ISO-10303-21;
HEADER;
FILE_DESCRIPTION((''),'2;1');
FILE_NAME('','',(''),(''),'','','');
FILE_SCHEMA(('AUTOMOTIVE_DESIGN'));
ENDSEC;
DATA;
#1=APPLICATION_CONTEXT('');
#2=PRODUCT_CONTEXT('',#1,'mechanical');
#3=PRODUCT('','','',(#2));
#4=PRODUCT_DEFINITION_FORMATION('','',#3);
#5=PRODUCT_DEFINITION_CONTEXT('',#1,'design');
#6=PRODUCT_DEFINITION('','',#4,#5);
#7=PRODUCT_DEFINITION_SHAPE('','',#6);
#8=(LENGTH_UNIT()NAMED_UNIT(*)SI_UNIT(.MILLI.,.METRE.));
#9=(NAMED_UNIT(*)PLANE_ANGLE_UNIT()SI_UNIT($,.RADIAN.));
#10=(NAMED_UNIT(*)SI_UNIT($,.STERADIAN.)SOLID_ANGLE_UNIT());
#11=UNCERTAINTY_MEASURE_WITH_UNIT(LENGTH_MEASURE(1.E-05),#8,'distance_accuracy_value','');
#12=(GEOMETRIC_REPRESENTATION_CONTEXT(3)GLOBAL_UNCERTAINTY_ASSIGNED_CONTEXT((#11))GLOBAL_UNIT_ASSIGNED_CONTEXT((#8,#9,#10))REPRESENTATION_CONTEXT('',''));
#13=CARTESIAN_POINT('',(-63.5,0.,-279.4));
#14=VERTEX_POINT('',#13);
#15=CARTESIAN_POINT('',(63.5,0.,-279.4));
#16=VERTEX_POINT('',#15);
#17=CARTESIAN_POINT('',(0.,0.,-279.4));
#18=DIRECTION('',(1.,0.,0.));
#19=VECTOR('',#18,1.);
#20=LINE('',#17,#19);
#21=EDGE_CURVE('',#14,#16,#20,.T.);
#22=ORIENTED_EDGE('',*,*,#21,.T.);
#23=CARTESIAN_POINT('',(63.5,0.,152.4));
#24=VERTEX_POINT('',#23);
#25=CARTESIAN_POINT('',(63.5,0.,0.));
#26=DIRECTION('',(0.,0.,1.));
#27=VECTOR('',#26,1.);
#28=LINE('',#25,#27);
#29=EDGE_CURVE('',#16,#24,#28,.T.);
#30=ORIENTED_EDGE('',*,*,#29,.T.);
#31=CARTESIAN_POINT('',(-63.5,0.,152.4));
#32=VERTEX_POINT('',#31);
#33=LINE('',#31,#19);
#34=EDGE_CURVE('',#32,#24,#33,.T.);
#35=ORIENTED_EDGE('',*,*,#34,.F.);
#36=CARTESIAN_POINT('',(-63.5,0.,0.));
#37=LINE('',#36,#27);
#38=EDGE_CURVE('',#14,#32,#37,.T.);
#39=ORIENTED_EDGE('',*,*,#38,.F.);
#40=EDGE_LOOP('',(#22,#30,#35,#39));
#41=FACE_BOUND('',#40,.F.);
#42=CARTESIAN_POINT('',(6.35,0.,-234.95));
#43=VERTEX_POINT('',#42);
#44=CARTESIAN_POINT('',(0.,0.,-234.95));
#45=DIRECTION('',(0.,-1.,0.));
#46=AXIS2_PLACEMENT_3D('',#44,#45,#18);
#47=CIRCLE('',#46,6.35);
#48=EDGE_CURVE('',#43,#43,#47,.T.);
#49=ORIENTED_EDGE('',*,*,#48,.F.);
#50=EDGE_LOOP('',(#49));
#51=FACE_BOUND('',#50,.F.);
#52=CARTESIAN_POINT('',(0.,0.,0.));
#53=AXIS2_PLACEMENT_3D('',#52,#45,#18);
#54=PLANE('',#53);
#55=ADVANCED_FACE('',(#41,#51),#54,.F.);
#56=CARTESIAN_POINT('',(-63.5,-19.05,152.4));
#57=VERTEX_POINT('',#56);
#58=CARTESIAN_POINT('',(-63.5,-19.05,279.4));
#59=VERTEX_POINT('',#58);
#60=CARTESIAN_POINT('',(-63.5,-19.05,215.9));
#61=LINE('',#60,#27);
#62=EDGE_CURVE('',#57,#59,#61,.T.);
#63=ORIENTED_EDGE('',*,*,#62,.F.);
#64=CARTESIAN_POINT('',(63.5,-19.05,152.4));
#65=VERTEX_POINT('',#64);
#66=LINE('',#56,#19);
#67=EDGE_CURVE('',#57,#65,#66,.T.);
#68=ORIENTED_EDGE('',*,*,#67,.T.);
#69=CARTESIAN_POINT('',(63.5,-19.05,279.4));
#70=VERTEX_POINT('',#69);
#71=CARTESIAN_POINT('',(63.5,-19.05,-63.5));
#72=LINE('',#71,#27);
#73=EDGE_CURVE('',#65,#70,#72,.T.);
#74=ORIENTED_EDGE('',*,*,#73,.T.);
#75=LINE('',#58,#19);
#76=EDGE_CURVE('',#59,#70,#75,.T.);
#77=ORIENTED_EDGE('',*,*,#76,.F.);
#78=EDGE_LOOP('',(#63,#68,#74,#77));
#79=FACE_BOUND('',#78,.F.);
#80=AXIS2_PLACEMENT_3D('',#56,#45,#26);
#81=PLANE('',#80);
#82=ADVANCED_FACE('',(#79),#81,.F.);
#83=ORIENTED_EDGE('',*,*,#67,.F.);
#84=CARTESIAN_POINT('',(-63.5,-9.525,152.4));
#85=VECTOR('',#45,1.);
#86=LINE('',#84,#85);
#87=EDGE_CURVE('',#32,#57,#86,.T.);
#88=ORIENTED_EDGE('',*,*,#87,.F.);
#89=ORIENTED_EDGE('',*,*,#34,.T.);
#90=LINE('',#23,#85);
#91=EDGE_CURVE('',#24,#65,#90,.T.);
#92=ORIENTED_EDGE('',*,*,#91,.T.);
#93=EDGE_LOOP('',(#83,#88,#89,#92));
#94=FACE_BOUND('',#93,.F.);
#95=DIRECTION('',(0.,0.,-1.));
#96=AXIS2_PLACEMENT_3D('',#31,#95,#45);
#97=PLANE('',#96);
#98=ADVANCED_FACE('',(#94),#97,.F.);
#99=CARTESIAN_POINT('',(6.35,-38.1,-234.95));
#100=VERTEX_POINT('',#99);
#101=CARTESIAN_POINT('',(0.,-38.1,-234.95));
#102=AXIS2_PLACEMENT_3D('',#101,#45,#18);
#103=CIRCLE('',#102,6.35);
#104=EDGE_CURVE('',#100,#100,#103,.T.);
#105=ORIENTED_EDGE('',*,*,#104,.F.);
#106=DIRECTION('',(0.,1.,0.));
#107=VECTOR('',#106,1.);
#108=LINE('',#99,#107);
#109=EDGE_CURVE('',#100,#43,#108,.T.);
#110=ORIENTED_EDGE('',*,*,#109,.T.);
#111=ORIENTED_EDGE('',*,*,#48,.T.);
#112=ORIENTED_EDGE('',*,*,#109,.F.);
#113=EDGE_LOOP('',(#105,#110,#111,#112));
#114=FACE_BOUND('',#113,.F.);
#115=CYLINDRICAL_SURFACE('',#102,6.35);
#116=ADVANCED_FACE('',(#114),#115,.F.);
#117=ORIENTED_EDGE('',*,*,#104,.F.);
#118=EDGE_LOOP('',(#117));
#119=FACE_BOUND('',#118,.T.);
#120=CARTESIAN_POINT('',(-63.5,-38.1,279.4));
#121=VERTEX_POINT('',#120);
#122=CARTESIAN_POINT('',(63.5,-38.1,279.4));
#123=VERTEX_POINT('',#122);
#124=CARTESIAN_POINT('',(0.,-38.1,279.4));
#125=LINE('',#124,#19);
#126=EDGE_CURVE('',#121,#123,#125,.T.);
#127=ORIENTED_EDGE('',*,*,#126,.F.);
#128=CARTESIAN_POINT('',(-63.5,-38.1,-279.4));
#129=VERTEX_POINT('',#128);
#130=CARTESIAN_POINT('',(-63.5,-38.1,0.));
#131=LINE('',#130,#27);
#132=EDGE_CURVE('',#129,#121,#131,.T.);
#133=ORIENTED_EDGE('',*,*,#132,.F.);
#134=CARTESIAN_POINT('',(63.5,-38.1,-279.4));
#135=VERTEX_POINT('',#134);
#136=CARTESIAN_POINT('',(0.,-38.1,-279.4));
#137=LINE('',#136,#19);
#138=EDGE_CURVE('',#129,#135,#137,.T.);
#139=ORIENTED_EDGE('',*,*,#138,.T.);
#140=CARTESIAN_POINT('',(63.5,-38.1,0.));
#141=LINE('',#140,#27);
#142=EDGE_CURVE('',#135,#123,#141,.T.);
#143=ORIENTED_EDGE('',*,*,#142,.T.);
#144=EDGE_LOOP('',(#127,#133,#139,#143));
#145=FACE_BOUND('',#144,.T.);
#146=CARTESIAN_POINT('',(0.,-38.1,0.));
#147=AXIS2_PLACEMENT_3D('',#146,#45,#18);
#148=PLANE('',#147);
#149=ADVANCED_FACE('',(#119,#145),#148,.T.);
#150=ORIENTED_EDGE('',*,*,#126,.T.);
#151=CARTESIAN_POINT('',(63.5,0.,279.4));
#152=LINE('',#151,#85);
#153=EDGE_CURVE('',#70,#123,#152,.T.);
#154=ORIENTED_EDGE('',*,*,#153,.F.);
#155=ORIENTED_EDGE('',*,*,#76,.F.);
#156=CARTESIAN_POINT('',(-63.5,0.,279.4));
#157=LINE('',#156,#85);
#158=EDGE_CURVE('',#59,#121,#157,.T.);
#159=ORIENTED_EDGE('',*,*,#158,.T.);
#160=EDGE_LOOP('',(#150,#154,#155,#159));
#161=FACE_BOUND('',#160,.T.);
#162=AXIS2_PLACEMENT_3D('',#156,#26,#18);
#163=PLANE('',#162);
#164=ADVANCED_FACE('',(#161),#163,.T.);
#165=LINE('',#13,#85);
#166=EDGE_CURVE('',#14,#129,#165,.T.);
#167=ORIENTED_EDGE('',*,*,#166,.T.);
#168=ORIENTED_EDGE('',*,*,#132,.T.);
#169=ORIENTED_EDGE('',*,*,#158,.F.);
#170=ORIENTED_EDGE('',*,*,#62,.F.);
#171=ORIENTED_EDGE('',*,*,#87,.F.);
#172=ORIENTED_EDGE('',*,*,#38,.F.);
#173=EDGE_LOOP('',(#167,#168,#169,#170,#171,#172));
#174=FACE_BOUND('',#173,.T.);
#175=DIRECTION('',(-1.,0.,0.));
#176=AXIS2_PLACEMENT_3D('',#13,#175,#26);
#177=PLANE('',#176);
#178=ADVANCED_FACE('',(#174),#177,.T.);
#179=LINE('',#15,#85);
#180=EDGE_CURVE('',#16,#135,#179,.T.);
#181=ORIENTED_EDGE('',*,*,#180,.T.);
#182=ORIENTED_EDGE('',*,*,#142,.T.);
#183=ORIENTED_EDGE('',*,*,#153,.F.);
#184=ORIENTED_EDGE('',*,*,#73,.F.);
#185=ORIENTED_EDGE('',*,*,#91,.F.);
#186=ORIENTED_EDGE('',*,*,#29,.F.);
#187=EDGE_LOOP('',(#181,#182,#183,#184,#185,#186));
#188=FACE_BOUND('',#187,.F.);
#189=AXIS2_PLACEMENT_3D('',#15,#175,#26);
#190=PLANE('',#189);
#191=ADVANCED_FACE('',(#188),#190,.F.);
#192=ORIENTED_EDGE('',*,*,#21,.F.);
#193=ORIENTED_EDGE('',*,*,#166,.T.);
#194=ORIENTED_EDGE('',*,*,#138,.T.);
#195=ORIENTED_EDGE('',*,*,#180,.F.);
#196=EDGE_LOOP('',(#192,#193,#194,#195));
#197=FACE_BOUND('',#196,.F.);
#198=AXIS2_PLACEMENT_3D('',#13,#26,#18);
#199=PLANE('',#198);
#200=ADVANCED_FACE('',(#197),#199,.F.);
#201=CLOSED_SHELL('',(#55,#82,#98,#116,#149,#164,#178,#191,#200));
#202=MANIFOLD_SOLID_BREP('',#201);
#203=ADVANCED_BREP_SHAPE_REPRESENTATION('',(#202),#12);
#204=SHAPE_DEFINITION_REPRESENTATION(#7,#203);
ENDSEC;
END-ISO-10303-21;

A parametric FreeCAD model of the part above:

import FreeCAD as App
import Part
import Sketcher
Q = App.Units.Quantity


def add_polygon(sketch, points):
    """Adds a closed chain of lines whose ends are joined by coincident constraints."""
    first, n = sketch.GeometryCount, len(points)
    for a, b in zip(points, points[1:] + points[:1]):
        sketch.addGeometry(Part.LineSegment(App.Vector(*a, 0), App.Vector(*b, 0)), False)
    for i in range(n):
        sketch.addConstraint(Sketcher.Constraint("Coincident", first + i, 2, first + (i + 1) % n, 1))

doc = App.newDocument("Part")
params = doc.addObject("Spreadsheet::Sheet", "Params")
for row, (alias, value) in enumerate([
    ("sketch1_width", "5 in"),
    ("sketch1_height", "22 in"),
    ("pad1_length", "1.5 in"),
    ("sketch2_height", "5 in"),
    ("sketch2_width", "0.75 in"),
    ("pocket1_length", "6 in"),
    ("sketch3_diameter", "0.5 in"),
], start=1):
    params.set(f"A{row}", alias)
    params.set(f"B{row}", "=" + value)
    params.setAlias(f"B{row}", alias)

body = doc.addObject("PartDesign::Body", "Body")

# Sketch on XZ plane
sketch1 = body.newObject("Sketcher::SketchObject", "Sketch")
sketch1.AttachmentSupport = (doc.getObject("XZ_Plane"), [""])
sketch1.MapMode = "FlatFace"
add_polygon(sketch1, [(-64, 279), (-64, -279), (64, -279), (64, 279)])  # lines 0-3
sketch1.addConstraint(Sketcher.Constraint("Vertical", 0))
sketch1.addConstraint(Sketcher.Constraint("Horizontal", 1))
sketch1.addConstraint(Sketcher.Constraint("Vertical", 2))
sketch1.addConstraint(Sketcher.Constraint("Horizontal", 3))
sketch1.addConstraint(Sketcher.Constraint("Symmetric", 0, 2, 2, 2, -1, 1))
sketch1.addConstraint(Sketcher.Constraint("DistanceX", 1, 1, 1, 2, Q("5 in")))
sketch1.addConstraint(Sketcher.Constraint("DistanceY", 0, 2, 0, 1, Q("22 in")))
sketch1.setExpression("Constraints[9]", "Params.sketch1_width")
sketch1.setExpression("Constraints[10]", "Params.sketch1_height")
pad1 = body.newObject("PartDesign::Pad", "Pad")
pad1.Profile = sketch1
pad1.setExpression("Length", "Params.pad1_length")

# Sketch on YZ plane
sketch2 = body.newObject("Sketcher::SketchObject", "Sketch001")
sketch2.AttachmentSupport = (doc.getObject("YZ_Plane"), [""])
sketch2.MapMode = "FlatFace"
sketch2.AttachmentOffset = App.Placement(App.Vector(0, 0, -2.5 * 25.4), App.Rotation())
add_polygon(sketch2, [(0, 279), (0, 152), (-19, 152), (-19, 279)])  # lines 0-3
sketch2.addConstraint(Sketcher.Constraint("Vertical", 0))
sketch2.addConstraint(Sketcher.Constraint("Horizontal", 1))
sketch2.addConstraint(Sketcher.Constraint("Vertical", 2))
sketch2.addConstraint(Sketcher.Constraint("Horizontal", 3))
sketch2.addConstraint(Sketcher.Constraint("PointOnObject", 0, 2, -2))
sketch2.addConstraint(Sketcher.Constraint("DistanceY", 0, 2, 0, 1, Q("5 in")))
sketch2.addConstraint(Sketcher.Constraint("DistanceY", -1, 1, 0, 2, Q("6 in")))
sketch2.addConstraint(Sketcher.Constraint("DistanceX", 1, 2, 1, 1, Q("0.75 in")))
sketch2.setExpression("Constraints[9]", "Params.sketch2_height")
sketch2.setExpression("Constraints[11]", "Params.sketch2_width")
pocket1 = body.newObject("PartDesign::Pocket", "Pocket")
pocket1.Profile = sketch2
pocket1.setExpression("Length", "Params.pocket1_length")
pocket1.Reversed = True

# Sketch on XZ plane
sketch3 = body.newObject("Sketcher::SketchObject", "Sketch002")
sketch3.AttachmentSupport = (doc.getObject("XZ_Plane"), [""])
sketch3.MapMode = "FlatFace"
sketch3.AttachmentOffset = App.Placement(App.Vector(0, 0, 1.5 * 25.4), App.Rotation())
sketch3.addGeometry(Part.Circle(App.Vector(0, -235, 0), App.Vector(0, 0, 1), 6), False)
sketch3.addConstraint(Sketcher.Constraint("PointOnObject", 0, 3, -2))
sketch3.addConstraint(Sketcher.Constraint("Diameter", 0, Q("0.5 in")))
sketch3.addConstraint(Sketcher.Constraint("DistanceY", 0, 3, -1, 1, Q("9.25 in")))
sketch3.setExpression("Constraints[1]", "Params.sketch3_diameter")
pocket2 = body.newObject("PartDesign::Pocket", "Pocket001")
pocket2.Profile = sketch3
pocket2.Type = "ThroughAll"

doc.recompute()
